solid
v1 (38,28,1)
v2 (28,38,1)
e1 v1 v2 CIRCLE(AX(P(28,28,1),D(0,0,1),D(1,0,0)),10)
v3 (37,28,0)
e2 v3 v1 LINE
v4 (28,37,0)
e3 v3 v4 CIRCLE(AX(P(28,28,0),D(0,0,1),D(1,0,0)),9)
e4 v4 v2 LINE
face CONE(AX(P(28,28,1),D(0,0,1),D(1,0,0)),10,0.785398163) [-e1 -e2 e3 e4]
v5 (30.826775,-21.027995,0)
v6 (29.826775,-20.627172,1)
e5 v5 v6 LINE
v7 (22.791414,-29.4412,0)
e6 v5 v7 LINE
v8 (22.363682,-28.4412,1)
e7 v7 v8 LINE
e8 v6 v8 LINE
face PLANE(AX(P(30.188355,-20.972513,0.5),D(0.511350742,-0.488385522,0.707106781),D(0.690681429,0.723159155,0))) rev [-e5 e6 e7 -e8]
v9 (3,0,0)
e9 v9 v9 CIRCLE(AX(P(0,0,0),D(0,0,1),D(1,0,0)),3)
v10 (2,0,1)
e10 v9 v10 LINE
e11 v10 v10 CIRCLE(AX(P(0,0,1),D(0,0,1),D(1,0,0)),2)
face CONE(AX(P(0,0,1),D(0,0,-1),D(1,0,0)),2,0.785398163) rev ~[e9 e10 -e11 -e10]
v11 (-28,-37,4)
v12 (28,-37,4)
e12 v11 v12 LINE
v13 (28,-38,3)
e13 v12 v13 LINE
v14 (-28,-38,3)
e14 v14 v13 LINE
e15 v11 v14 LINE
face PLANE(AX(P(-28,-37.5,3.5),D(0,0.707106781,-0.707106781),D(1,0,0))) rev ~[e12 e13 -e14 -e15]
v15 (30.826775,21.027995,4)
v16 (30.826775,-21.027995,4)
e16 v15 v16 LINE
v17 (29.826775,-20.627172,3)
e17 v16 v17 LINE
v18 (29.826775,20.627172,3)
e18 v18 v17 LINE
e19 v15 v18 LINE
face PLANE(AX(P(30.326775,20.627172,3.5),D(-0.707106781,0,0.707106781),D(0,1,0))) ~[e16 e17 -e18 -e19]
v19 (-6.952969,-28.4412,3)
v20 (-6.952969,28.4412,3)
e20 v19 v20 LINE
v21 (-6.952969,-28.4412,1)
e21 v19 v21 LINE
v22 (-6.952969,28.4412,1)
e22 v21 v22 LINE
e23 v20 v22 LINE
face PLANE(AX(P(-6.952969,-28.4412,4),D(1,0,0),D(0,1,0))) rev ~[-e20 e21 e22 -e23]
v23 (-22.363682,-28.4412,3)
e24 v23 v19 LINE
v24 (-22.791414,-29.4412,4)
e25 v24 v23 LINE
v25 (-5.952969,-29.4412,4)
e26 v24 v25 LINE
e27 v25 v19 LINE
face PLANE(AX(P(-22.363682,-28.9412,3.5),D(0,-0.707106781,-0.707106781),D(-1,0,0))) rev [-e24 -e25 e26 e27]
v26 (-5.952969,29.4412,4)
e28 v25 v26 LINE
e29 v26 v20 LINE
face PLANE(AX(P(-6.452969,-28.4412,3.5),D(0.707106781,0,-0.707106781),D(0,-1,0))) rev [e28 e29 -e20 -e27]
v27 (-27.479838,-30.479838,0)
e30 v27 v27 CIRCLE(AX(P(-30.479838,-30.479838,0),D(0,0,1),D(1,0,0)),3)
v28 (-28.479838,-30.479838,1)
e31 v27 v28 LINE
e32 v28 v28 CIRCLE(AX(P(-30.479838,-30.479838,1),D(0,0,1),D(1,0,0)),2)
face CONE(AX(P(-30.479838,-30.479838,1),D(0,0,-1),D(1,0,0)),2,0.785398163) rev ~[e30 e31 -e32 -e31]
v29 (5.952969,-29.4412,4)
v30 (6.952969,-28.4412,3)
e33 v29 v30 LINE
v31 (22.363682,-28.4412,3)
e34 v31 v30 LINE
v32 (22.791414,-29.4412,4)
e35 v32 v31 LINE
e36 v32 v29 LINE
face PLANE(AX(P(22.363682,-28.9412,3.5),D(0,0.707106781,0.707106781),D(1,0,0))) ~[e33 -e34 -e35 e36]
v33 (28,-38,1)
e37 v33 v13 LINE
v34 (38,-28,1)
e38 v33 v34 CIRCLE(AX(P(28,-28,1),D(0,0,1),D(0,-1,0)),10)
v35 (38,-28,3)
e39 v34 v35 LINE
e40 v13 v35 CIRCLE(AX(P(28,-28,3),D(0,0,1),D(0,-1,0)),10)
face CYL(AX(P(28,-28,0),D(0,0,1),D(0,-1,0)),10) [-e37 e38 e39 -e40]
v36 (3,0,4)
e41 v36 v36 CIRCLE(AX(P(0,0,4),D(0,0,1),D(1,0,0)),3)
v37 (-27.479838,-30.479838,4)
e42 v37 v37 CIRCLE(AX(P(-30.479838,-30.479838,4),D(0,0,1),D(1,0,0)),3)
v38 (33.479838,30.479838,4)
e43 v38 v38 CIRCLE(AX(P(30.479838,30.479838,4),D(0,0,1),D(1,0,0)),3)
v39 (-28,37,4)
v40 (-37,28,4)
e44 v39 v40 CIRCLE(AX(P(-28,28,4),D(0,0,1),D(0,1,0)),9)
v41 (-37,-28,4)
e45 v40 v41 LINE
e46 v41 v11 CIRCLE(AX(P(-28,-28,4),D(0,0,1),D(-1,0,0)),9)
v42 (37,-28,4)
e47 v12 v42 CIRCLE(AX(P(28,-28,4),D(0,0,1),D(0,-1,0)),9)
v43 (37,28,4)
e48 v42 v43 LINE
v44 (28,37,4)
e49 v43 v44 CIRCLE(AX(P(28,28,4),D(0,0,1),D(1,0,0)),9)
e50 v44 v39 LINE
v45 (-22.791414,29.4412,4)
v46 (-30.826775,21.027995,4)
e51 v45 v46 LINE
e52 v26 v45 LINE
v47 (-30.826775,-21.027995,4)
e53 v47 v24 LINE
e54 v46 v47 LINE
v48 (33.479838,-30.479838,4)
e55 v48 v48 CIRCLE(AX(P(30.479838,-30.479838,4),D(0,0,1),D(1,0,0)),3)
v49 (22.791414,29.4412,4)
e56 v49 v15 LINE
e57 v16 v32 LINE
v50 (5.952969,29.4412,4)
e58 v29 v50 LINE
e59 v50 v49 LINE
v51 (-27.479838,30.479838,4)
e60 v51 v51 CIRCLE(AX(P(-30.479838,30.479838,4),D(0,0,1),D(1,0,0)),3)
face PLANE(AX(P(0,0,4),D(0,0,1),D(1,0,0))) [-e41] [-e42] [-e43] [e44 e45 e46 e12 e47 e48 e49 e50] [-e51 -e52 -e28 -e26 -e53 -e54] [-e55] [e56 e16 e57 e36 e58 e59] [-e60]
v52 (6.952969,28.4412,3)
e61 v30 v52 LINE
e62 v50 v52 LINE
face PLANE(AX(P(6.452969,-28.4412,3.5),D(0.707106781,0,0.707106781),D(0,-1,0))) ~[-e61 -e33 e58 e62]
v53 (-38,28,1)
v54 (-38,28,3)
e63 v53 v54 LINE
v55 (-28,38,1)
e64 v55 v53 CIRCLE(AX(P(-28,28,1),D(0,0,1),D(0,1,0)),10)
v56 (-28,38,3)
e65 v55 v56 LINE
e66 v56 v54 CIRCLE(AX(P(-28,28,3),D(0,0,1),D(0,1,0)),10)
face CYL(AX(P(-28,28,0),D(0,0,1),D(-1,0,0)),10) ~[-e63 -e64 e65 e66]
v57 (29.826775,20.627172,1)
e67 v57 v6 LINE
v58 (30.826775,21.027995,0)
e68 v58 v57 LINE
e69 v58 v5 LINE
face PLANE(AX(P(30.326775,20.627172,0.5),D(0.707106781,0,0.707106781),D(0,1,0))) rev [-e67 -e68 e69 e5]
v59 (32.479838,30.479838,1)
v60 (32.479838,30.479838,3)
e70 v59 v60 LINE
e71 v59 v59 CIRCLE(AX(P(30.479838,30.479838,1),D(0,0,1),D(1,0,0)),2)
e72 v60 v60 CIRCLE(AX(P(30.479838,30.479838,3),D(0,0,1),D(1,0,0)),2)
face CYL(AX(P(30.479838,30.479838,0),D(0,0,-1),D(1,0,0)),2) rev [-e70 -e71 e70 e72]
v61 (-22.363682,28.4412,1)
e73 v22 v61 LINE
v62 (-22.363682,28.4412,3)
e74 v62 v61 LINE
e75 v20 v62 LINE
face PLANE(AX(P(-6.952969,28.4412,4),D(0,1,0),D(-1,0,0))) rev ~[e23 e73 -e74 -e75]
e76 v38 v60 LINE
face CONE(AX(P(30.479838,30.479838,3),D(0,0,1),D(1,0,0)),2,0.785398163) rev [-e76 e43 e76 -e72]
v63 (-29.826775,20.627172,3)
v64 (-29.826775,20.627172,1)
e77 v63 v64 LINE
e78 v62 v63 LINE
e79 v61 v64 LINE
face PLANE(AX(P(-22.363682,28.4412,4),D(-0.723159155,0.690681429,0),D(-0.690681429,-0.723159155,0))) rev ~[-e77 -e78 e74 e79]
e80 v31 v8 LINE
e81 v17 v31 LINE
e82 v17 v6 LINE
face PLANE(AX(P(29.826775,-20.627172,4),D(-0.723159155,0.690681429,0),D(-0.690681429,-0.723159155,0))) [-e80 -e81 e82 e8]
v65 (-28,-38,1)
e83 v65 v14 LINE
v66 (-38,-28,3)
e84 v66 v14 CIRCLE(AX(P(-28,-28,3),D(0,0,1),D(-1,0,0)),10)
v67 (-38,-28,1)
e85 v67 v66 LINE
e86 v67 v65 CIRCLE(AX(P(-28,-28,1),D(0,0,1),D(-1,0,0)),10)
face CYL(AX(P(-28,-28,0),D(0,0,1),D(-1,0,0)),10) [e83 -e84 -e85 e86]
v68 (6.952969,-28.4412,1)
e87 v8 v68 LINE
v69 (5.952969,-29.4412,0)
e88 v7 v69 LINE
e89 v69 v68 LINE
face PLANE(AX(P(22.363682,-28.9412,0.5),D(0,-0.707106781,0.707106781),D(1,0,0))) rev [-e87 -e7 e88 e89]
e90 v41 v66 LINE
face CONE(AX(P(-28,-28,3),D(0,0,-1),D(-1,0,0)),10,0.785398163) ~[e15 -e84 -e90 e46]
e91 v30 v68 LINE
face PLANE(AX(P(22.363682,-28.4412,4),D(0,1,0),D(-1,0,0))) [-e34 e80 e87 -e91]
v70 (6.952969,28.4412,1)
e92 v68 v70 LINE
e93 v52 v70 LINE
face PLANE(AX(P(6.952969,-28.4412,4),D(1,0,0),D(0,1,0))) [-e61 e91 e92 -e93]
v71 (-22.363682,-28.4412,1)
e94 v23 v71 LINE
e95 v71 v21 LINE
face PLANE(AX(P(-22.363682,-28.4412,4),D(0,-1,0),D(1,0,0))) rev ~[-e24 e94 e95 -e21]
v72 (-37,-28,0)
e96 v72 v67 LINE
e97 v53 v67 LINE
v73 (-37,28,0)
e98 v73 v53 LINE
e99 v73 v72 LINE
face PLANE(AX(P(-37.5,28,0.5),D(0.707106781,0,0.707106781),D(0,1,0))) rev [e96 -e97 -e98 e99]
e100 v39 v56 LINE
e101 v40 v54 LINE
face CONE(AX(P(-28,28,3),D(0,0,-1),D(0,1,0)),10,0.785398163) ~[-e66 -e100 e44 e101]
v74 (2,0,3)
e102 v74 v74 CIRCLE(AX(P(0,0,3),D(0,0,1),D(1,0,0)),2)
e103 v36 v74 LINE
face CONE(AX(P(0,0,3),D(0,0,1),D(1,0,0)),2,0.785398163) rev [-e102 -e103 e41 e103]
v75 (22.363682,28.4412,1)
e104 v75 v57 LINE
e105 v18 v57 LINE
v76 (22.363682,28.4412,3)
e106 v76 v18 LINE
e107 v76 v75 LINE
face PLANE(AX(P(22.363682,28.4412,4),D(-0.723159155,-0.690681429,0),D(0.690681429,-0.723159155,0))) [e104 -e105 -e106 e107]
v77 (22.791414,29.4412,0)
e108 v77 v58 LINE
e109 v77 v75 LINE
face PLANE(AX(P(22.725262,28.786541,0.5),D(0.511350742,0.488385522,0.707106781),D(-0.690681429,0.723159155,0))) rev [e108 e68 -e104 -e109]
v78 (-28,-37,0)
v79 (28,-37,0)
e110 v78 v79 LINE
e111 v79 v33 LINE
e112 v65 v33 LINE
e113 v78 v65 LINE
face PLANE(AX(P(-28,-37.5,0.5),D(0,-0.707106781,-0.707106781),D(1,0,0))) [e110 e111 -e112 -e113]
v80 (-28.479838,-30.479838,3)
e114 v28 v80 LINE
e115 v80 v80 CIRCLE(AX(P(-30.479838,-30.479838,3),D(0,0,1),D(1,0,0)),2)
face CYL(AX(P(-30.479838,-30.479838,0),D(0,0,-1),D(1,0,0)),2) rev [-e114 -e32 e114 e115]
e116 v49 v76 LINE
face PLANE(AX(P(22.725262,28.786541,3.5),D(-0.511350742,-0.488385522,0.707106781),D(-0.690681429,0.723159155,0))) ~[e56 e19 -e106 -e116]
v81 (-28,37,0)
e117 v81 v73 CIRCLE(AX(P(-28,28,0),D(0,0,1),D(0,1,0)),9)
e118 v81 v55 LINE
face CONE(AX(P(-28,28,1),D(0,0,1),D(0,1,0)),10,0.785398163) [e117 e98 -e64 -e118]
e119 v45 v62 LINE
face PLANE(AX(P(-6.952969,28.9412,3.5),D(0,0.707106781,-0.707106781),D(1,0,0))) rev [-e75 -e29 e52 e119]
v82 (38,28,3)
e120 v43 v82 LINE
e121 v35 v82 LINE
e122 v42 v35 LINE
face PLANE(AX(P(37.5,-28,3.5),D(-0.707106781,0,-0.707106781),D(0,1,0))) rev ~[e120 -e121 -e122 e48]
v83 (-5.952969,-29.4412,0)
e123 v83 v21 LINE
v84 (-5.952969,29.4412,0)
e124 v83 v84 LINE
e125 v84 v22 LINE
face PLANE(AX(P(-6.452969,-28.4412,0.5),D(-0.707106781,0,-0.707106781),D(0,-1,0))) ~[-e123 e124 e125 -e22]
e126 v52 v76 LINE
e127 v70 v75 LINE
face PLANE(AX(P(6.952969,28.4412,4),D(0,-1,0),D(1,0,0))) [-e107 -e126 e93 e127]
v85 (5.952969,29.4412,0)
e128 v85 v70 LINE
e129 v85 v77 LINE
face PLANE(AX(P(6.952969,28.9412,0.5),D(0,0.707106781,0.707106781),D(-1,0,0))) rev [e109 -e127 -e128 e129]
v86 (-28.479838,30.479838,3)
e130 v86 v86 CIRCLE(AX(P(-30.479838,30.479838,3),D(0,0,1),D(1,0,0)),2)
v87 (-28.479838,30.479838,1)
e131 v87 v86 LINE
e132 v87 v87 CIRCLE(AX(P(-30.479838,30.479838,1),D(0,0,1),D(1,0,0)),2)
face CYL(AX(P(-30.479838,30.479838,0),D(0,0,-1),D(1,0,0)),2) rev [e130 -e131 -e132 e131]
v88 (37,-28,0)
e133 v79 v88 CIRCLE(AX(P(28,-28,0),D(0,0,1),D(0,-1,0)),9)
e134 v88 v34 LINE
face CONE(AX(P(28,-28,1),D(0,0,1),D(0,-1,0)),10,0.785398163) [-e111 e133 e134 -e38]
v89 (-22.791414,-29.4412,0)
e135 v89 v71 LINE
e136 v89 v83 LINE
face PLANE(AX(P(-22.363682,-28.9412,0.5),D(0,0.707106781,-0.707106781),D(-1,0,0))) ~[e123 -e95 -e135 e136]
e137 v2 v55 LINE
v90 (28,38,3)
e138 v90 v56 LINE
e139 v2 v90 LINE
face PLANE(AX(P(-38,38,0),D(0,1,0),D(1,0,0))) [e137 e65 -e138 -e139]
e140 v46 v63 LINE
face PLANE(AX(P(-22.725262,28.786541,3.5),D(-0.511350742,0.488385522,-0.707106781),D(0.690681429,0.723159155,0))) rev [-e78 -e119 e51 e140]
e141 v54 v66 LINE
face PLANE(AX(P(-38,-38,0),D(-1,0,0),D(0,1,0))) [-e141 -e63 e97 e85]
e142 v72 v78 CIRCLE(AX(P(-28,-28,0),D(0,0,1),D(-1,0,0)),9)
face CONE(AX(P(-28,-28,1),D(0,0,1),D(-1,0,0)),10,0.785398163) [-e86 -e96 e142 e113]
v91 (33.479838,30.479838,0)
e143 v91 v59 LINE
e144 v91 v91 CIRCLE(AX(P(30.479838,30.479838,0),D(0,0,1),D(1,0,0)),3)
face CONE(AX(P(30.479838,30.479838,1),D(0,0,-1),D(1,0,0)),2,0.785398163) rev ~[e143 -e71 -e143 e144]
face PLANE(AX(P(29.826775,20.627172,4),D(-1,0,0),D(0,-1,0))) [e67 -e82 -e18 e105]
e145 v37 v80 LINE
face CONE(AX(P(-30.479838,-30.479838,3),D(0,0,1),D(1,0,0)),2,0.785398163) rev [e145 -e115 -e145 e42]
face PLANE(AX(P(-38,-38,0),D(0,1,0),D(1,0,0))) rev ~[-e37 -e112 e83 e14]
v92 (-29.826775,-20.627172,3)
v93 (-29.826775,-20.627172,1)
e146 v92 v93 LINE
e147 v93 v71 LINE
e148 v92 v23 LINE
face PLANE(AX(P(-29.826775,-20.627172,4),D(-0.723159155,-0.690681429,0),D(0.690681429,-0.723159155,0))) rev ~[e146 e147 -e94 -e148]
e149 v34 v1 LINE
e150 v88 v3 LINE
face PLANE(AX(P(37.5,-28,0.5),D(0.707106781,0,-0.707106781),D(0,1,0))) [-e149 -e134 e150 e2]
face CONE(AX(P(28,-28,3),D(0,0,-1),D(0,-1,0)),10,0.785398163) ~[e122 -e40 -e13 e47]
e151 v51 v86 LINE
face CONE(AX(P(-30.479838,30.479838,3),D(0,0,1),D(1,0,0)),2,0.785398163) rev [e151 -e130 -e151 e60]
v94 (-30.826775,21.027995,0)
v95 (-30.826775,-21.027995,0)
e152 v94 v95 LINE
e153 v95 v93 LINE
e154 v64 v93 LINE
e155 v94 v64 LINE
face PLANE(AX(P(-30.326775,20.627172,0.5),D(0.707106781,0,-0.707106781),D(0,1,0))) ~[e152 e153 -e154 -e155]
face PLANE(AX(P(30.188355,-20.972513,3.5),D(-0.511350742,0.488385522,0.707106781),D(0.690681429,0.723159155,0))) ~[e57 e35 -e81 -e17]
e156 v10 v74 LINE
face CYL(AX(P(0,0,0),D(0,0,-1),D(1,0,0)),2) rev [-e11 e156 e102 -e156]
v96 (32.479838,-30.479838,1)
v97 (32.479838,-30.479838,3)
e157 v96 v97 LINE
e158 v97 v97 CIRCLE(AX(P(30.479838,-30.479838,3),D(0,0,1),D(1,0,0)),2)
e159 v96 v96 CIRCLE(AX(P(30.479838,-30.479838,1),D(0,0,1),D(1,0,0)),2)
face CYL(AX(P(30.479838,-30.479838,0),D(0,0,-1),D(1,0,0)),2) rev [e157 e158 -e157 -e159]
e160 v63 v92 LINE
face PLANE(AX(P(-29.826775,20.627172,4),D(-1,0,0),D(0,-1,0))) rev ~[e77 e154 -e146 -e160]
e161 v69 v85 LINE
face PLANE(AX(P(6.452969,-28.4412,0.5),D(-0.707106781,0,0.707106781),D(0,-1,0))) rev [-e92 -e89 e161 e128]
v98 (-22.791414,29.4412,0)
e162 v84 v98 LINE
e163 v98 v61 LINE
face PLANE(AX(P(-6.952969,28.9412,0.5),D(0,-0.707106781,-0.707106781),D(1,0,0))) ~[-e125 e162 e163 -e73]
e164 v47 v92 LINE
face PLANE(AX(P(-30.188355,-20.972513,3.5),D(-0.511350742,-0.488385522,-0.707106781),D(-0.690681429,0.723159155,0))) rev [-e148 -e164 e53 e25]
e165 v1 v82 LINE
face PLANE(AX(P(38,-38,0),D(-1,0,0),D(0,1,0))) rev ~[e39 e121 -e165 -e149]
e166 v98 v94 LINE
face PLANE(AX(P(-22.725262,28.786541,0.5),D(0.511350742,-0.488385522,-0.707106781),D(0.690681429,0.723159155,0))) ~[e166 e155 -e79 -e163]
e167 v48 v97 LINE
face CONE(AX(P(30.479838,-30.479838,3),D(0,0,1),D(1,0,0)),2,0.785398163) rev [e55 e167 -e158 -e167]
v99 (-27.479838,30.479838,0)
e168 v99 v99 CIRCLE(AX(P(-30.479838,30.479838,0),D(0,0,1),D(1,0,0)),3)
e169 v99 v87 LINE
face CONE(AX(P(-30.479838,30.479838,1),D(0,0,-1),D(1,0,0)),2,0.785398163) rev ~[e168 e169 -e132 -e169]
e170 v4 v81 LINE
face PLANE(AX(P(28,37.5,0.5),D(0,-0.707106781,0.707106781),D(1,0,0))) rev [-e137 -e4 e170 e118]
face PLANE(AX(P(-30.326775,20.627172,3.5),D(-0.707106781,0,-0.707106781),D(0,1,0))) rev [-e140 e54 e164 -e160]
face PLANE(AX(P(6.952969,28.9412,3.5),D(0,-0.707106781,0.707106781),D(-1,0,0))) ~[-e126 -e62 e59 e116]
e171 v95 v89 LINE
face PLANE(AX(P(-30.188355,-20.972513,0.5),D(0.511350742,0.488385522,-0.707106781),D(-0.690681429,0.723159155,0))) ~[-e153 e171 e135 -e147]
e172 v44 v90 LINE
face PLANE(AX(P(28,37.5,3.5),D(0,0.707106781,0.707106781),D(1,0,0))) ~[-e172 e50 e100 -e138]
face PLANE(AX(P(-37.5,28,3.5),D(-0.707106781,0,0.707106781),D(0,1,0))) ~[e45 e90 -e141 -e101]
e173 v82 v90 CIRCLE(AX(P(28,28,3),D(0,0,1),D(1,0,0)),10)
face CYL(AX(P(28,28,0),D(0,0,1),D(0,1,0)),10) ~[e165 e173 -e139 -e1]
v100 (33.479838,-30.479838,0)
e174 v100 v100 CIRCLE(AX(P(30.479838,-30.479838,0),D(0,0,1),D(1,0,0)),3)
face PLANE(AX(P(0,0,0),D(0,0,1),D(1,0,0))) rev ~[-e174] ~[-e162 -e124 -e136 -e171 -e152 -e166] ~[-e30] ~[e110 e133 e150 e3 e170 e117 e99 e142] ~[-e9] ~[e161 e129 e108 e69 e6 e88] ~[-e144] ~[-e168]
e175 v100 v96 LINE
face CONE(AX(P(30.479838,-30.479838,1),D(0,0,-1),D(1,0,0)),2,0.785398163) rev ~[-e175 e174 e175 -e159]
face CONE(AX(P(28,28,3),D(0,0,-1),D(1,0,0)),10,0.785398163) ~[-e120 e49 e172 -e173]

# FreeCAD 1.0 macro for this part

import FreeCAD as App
import Part
import Sketcher

V = App.Vector
Q = App.Units.Quantity


def edges_at(feature, points):
    """Names of the edges that pass closest to the given points."""
    edges = feature.Shape.Edges
    near = lambda p: min(range(len(edges)), key=lambda i: edges[i].distToShape(Part.Vertex(*p))[0])
    return sorted({f"Edge{near(p) + 1}" for p in points})


def add_polygon(sketch, points):
    """Adds a closed chain of lines whose ends are joined by coincident constraints."""
    first, n = sketch.GeometryCount, len(points)
    for a, b in zip(points, points[1:] + points[:1]):
        sketch.addGeometry(Part.LineSegment(App.Vector(*a, 0), App.Vector(*b, 0)), False)
    for i in range(n):
        sketch.addConstraint(Sketcher.Constraint("Coincident", first + i, 2, first + (i + 1) % n, 1))

doc = App.newDocument("Part")
body = doc.addObject("PartDesign::Body", "Body")

# Sketch on XY plane
sketch1 = doc.addObject("Sketcher::SketchObject", "Sketch")
body.addObject(sketch1)
sketch1.AttachmentSupport = (doc.XY_Plane, [""])
sketch1.MapMode = "FlatFace"
add_polygon(sketch1, [(-38, 38), (-38, -38), (38, -38), (38, 38)])  # lines 0-3
sketch1.addGeometry(Part.Circle(V(-30.5, -30.5, 0), V(0, 0, 1), 2), False)  # 4
sketch1.addGeometry(Part.Circle(V(30.5, -30.5, 0), V(0, 0, 1), 2), False)  # 5
sketch1.addGeometry(Part.Circle(V(-30.5, 30.5, 0), V(0, 0, 1), 2), False)  # 6
sketch1.addGeometry(Part.Circle(V(0, 0, 0), V(0, 0, 1), 2), False)  # 7
sketch1.addGeometry(Part.Circle(V(30.5, 30.5, 0), V(0, 0, 1), 2), False)  # 8
sketch1.addConstraint(Sketcher.Constraint("Vertical", 0))
sketch1.addConstraint(Sketcher.Constraint("Horizontal", 1))
sketch1.addConstraint(Sketcher.Constraint("Vertical", 2))
sketch1.addConstraint(Sketcher.Constraint("Horizontal", 3))
sketch1.addConstraint(Sketcher.Constraint("Coincident", 7, 3, -1, 1))
sketch1.addConstraint(Sketcher.Constraint("Equal", 4, 5))
sketch1.addConstraint(Sketcher.Constraint("Equal", 5, 6))
sketch1.addConstraint(Sketcher.Constraint("Equal", 6, 7))
sketch1.addConstraint(Sketcher.Constraint("Equal", 7, 8))
sketch1.addConstraint(Sketcher.Constraint("Symmetric", 5, 3, 6, 3, -1, 1))
sketch1.addConstraint(Sketcher.Constraint("Symmetric", 4, 3, 8, 3, -1, 1))
sketch1.addConstraint(Sketcher.Constraint("Symmetric", 0, 2, 2, 2, -1, 1))
sketch1.addConstraint(Sketcher.Constraint("Symmetric", 4, 3, 5, 3, -2))
sketch1.addConstraint(Sketcher.Constraint("Equal", 3, 0))
sketch1.addConstraint(Sketcher.Constraint("Diameter", 4, Q("4 mm")))
sketch1.addConstraint(Sketcher.Constraint("DistanceX", 1, 1, 1, 2, Q("76 mm")))
sketch1.addConstraint(Sketcher.Constraint("DistanceX", 4, 3, -1, 1, Q("30.479838 mm")))
sketch1.addConstraint(Sketcher.Constraint("DistanceY", 4, 3, -1, 1, Q("30.479838 mm")))
pad1 = doc.addObject("PartDesign::Pad", "Pad")
body.addObject(pad1)
pad1.Profile = sketch1
pad1.Length = 4

# Sketch on XY plane
sketch2 = doc.addObject("Sketcher::SketchObject", "Sketch001")
body.addObject(sketch2)
sketch2.AttachmentSupport = (doc.XY_Plane, [""])
sketch2.MapMode = "FlatFace"
sketch2.AttachmentOffset = App.Placement(V(0, 0, 4), App.Rotation())
add_polygon(sketch2, [(-30, 21), (-30, -21), (-22, -28), (-7, -28), (-7, 28), (-22, 28)])  # lines 0-5
add_polygon(sketch2, [(30, -21), (30, 21), (22, 28), (7, 28), (7, -28), (22, -28)])  # lines 6-11
sketch2.addConstraint(Sketcher.Constraint("Vertical", 0))
sketch2.addConstraint(Sketcher.Constraint("Horizontal", 2))
sketch2.addConstraint(Sketcher.Constraint("Vertical", 3))
sketch2.addConstraint(Sketcher.Constraint("Horizontal", 4))
sketch2.addConstraint(Sketcher.Constraint("Vertical", 6))
sketch2.addConstraint(Sketcher.Constraint("Horizontal", 8))
sketch2.addConstraint(Sketcher.Constraint("Vertical", 9))
sketch2.addConstraint(Sketcher.Constraint("Horizontal", 10))
sketch2.addConstraint(Sketcher.Constraint("Symmetric", 0, 2, 6, 2, -1, 1))
sketch2.addConstraint(Sketcher.Constraint("Symmetric", 1, 2, 7, 2, -1, 1))
sketch2.addConstraint(Sketcher.Constraint("Symmetric", 3, 2, 9, 2, -1, 1))
sketch2.addConstraint(Sketcher.Constraint("Symmetric", 4, 2, 7, 2, -2))
sketch2.addConstraint(Sketcher.Constraint("Parallel", 5, 11))
sketch2.addConstraint(Sketcher.Constraint("Horizontal", 5, 2, 6, 2))
sketch2.addConstraint(Sketcher.Constraint("Horizontal", 0, 2, 11, 2))
sketch2.addConstraint(Sketcher.Constraint("DistanceY", 3, 1, 3, 2, Q("56.8824 mm")))
sketch2.addConstraint(Sketcher.Constraint("DistanceX", 2, 1, 2, 2, Q("15.410713 mm")))
sketch2.addConstraint(Sketcher.Constraint("DistanceY", 0, 2, 0, 1, Q("41.254344 mm")))
sketch2.addConstraint(Sketcher.Constraint("DistanceX", 2, 2, -1, 1, Q("6.952969 mm")))
sketch2.addConstraint(Sketcher.Constraint("DistanceX", 5, 2, 6, 2, Q("59.65355 mm")))
pocket1 = doc.addObject("PartDesign::Pocket", "Pocket")
body.addObject(pocket1)
pocket1.Profile = sketch2
pocket1.Length = 5
doc.recompute()

fillet = doc.addObject("PartDesign::Fillet", "Fillet")
body.addObject(fillet)
fillet.Base = (pocket1, edges_at(pocket1, [
    (38, -38, 2),
    (-38, -38, 2),
    (-38, 38, 2),
    (38, 38, 2),
]))
fillet.Radius = 10
doc.recompute()

chamfer = doc.addObject("PartDesign::Chamfer", "Chamfer")
body.addObject(chamfer)
chamfer.Base = (fillet, edges_at(fillet, [
    (38, 0, 4),
    (35.071, -35.071, 4),
    (35.071, 35.071, 4),
    (0, -38, 4),
    (0, 38, 4),
    (-35.071, -35.071, 4),
    (-35.071, 35.071, 4),
    (-38, 0, 4),
    (-32.48, -30.48, 4),
    (28.48, -30.48, 4),
    (-29.827, 0, 4),
    (-26.095, -24.534, 4),
    (-14.658, -28.441, 4),
    (-6.953, 0, 4),
    (-14.658, 28.441, 4),
    (-26.095, 24.534, 4),
    (-32.48, 30.48, 4),
    (-2, 0, 4),
    (26.095, 24.534, 4),
    (14.658, 28.441, 4),
    (6.953, 0, 4),
    (14.658, -28.441, 4),
    (26.095, -24.534, 4),
    (29.827, 0, 4),
    (28.48, 30.48, 4),
    (38, 0, 0),
    (35.071, -35.071, 0),
    (35.071, 35.071, 0),
    (0, -38, 0),
    (0, 38, 0),
    (-35.071, -35.071, 0),
    (-35.071, 35.071, 0),
    (-38, 0, 0),
    (-32.48, -30.48, 0),
    (28.48, -30.48, 0),
    (-29.827, 0, 0),
    (-26.095, -24.534, 0),
    (-14.658, -28.441, 0),
    (-6.953, 0, 0),
    (-14.658, 28.441, 0),
    (-26.095, 24.534, 0),
    (-32.48, 30.48, 0),
    (-2, 0, 0),
    (26.095, 24.534, 0),
    (14.658, 28.441, 0),
    (6.953, 0, 0),
    (14.658, -28.441, 0),
    (26.095, -24.534, 0),
    (29.827, 0, 0),
    (28.48, 30.48, 0),
]))
chamfer.Size = 1

doc.recompute()
